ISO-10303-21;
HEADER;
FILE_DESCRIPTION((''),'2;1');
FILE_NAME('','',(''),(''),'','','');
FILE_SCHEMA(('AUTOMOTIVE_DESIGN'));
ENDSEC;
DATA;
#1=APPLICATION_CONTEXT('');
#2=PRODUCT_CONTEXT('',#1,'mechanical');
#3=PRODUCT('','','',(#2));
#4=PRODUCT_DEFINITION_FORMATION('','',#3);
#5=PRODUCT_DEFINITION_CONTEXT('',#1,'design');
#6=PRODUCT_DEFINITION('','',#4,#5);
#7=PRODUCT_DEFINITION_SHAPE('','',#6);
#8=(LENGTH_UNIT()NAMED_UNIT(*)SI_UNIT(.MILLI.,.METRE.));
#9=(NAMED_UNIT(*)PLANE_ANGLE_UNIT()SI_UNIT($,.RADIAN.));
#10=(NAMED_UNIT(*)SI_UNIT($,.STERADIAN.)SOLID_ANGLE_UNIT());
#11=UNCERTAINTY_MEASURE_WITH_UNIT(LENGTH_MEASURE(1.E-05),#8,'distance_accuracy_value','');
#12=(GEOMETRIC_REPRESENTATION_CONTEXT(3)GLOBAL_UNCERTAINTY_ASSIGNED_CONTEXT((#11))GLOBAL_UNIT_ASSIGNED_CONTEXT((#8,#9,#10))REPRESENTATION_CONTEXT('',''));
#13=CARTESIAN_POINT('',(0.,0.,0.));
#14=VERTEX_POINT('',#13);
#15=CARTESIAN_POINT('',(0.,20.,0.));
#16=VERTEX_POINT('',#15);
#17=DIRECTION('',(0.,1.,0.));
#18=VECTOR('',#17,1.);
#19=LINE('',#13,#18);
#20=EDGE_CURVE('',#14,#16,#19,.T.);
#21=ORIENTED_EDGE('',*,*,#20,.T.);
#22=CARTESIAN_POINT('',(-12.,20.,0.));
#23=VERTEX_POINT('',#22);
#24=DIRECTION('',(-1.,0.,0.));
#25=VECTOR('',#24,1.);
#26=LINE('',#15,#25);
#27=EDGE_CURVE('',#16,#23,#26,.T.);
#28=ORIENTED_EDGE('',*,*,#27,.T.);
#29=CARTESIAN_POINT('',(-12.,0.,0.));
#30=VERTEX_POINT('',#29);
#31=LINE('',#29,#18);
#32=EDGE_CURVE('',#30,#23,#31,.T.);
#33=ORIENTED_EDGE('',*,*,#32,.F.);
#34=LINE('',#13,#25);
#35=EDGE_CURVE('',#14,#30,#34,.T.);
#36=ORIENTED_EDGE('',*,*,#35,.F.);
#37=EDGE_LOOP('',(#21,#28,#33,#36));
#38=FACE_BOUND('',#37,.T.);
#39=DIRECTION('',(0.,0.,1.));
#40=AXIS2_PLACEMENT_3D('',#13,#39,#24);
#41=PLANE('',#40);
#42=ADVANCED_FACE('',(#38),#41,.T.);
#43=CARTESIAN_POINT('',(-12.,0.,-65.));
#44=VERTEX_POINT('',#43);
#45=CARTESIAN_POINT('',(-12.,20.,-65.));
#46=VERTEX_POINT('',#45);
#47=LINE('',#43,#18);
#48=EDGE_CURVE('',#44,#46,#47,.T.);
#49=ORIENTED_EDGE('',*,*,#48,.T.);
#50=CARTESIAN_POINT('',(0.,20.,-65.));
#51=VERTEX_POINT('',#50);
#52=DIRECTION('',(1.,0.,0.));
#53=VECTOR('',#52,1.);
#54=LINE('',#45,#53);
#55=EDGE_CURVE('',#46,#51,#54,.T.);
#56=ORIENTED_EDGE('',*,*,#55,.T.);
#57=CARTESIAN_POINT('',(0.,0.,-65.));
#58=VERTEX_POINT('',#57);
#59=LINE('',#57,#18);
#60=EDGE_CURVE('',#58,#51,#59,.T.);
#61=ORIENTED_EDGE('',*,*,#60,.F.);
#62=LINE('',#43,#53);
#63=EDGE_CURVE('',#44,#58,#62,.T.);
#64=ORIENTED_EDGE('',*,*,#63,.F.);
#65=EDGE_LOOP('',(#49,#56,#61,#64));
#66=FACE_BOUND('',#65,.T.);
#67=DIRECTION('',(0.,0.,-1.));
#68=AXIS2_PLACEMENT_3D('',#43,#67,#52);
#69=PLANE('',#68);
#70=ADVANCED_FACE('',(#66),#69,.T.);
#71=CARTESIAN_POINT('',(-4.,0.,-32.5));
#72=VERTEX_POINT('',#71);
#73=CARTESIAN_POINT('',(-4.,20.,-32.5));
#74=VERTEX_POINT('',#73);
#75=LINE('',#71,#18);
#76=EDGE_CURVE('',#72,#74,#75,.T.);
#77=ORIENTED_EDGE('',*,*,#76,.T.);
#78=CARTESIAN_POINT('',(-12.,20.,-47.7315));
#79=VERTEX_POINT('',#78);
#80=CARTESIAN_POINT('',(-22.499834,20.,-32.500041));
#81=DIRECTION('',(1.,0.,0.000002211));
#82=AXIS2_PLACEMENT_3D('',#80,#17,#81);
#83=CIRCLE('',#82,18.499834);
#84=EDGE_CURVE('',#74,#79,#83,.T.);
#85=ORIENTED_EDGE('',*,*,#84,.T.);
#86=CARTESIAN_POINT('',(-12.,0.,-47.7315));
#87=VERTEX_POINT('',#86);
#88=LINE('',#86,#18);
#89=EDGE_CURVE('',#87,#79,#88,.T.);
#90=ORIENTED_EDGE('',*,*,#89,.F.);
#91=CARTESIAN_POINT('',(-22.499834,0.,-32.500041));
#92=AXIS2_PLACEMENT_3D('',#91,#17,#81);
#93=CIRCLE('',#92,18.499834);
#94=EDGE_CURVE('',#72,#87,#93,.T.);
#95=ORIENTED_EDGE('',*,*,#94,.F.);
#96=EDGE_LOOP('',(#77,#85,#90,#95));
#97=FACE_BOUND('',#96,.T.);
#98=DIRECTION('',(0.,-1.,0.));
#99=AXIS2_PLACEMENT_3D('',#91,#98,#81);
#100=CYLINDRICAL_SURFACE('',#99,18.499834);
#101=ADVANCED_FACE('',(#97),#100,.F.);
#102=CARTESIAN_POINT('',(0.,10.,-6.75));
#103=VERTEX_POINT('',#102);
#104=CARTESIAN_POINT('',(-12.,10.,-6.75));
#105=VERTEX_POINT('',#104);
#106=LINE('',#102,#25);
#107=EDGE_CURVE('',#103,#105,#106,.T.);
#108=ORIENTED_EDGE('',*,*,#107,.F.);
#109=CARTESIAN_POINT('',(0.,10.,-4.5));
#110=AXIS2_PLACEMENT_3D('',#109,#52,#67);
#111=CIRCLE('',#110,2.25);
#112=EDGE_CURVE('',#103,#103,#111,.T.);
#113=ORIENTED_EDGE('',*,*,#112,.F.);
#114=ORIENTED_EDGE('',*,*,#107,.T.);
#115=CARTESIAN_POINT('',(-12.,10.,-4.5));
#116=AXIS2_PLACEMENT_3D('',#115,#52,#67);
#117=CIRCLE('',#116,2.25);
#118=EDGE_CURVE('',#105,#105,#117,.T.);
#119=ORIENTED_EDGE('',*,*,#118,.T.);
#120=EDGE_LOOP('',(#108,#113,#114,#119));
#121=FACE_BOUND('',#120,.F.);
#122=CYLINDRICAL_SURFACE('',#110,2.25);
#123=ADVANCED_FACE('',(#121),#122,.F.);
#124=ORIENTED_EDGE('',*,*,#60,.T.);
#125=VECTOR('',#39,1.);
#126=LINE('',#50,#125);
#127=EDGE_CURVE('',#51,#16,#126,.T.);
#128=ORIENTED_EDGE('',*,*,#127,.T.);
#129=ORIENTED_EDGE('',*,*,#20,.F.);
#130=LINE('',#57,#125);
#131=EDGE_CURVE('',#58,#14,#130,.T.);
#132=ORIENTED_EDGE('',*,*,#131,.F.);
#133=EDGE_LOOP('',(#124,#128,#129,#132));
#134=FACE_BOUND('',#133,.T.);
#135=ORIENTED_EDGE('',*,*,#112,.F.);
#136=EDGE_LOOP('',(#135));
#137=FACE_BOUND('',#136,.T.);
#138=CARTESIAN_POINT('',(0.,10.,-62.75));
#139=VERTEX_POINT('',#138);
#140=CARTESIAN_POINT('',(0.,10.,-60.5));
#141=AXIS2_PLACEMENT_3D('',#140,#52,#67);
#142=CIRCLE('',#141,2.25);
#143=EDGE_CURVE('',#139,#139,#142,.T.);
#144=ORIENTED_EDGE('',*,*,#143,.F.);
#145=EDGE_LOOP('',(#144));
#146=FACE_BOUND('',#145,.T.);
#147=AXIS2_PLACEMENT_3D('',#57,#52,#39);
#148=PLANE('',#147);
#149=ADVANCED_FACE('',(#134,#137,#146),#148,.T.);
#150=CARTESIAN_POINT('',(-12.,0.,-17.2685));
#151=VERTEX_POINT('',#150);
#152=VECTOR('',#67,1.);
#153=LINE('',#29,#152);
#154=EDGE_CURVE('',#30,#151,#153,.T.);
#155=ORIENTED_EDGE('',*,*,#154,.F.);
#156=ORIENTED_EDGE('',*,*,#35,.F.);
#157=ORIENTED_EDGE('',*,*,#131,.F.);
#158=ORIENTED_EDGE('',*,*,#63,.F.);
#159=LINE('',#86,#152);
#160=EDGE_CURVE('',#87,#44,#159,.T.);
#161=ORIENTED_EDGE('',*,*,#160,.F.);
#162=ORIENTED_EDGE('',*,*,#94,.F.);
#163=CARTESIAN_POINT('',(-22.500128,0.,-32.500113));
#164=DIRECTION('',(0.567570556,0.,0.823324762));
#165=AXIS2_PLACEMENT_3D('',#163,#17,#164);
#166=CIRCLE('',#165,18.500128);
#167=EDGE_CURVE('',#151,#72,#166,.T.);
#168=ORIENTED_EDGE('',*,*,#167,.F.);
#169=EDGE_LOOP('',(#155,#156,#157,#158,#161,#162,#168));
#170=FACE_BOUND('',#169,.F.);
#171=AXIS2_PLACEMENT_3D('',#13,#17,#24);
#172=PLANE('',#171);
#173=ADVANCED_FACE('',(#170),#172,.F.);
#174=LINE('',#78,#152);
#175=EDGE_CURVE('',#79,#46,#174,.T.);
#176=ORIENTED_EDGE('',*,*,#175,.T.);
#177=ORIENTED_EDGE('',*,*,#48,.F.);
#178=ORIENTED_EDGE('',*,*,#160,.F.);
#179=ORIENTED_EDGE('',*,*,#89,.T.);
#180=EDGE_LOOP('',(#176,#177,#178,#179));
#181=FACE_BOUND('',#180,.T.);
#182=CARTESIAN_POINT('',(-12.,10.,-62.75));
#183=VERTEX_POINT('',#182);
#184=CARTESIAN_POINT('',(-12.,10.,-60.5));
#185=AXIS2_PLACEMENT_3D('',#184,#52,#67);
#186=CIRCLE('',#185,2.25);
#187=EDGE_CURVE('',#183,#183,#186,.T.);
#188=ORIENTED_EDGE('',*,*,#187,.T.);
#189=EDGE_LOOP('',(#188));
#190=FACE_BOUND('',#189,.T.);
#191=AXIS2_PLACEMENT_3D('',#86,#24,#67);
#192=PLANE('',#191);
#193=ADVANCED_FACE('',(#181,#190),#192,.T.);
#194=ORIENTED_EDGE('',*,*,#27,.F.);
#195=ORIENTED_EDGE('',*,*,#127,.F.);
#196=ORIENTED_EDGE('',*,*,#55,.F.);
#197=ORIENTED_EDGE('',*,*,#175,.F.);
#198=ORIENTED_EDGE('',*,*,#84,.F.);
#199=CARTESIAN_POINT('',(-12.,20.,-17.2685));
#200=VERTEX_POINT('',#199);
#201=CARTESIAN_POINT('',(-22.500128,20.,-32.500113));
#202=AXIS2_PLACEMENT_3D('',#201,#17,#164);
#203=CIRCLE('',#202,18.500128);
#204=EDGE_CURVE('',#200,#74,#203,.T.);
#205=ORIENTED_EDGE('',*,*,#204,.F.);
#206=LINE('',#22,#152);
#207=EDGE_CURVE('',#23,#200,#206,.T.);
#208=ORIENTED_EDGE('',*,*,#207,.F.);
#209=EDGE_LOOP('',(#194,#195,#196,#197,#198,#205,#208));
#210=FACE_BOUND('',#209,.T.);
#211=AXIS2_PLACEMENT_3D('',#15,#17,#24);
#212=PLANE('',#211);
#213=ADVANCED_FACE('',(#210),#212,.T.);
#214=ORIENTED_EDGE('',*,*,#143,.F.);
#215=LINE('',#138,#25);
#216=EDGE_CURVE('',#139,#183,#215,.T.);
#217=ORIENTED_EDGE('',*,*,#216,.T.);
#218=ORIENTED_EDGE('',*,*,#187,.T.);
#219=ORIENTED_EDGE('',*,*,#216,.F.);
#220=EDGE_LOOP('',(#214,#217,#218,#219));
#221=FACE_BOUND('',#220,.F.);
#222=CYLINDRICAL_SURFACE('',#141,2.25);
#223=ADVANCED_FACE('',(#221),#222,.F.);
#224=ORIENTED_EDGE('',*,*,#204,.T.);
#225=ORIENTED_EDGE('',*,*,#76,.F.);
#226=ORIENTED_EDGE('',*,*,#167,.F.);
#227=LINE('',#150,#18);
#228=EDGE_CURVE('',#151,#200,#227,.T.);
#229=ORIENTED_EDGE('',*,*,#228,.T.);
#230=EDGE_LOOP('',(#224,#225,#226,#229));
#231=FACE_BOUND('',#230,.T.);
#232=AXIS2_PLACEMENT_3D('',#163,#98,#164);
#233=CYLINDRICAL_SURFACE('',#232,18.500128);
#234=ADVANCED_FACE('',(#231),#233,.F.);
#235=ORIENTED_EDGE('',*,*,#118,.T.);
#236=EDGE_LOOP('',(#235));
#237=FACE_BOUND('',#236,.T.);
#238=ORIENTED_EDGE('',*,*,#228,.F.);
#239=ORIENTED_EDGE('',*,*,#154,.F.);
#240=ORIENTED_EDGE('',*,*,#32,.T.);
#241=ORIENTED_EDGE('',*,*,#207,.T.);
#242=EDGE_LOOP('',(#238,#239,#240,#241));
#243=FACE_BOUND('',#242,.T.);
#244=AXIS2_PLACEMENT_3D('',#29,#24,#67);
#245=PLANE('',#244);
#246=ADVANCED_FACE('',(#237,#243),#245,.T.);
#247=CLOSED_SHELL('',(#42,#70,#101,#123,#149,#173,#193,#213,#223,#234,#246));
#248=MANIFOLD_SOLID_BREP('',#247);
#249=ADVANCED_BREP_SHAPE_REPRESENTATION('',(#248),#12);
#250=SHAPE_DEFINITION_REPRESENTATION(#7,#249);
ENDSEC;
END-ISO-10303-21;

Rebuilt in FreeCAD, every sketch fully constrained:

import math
import FreeCAD as App
import Part
import Sketcher
from FreeCAD import Vector

doc = App.newDocument("Part")
body = doc.addObject("PartDesign::Body", "Body")

# Sketch on XZ plane
sketch1 = body.newObject("Sketcher::SketchObject", "Sketch")
sketch1.AttachmentSupport = (doc.getObject("XZ_Plane"), [""])
sketch1.MapMode = "FlatFace"
sketch1.addGeometry([
    Part.LineSegment(Vector(-12, 0, 0), Vector(0, 0, 0)),  # 0
    Part.LineSegment(Vector(0, 0, 0), Vector(0, -65, 0)),  # 1
    Part.LineSegment(Vector(0, -65, 0), Vector(-12, -65, 0)),  # 2
    Part.LineSegment(Vector(-12, -65, 0), Vector(-12, -47.7315, 0)),  # 3
    Part.ArcOfCircle(Part.Circle(Vector(-22.5, -32.5, 0), Vector(0, 0, 1), 18.499962), math.radians(-55.41914), math.radians(0)),  # 4
    Part.ArcOfCircle(Part.Circle(Vector(-22.5, -32.5, 0), Vector(0, 0, 1), 18.5), math.radians(0), math.radians(55.41914)),  # 5
    Part.LineSegment(Vector(-12, -17.2685, 0), Vector(-12, 0, 0)),  # 6
], False)
sketch1.addConstraint([
    Sketcher.Constraint("Coincident", 0, 2, 1, 1),
    Sketcher.Constraint("Coincident", 1, 2, 2, 1),
    Sketcher.Constraint("Coincident", 2, 2, 3, 1),
    Sketcher.Constraint("Coincident", 3, 2, 4, 1),
    Sketcher.Constraint("Tangent", 4, 2, 5, 1),
    Sketcher.Constraint("Coincident", 5, 2, 6, 1),
    Sketcher.Constraint("Coincident", 6, 2, 0, 1),
    Sketcher.Constraint("Horizontal", 0),
    Sketcher.Constraint("Vertical", 1),
    Sketcher.Constraint("Horizontal", 2),
    Sketcher.Constraint("Vertical", 3),
    Sketcher.Constraint("Vertical", 6),
    Sketcher.Constraint("Coincident", 0, 2, -1, 1),
    Sketcher.Constraint("Equal", 4, 5),
    Sketcher.Constraint("Horizontal", 5, 3, 4, 2),
    Sketcher.Constraint("Vertical", 3, 2, 5, 2),
    Sketcher.Constraint("Equal", 3, 6),
    Sketcher.Constraint("Radius", 4, 18.5),
    Sketcher.Constraint("DistanceX", 0, 1, 0, 2, 12.0),
    Sketcher.Constraint("DistanceY", 1, 2, 1, 1, 65.0),
    Sketcher.Constraint("DistanceX", 4, 2, -1, 1, 4.0),
])
pad1 = body.newObject("PartDesign::Pad", "Pad")
pad1.Profile = sketch1
pad1.Length = 20
pad1.Reversed = True

# Sketch on YZ plane
sketch2 = body.newObject("Sketcher::SketchObject", "Sketch001")
sketch2.AttachmentSupport = (doc.getObject("YZ_Plane"), [""])
sketch2.MapMode = "FlatFace"
sketch2.addGeometry([
    Part.Circle(Vector(10, -4.5, 0), Vector(0, 0, 1), 2.25),
    Part.Circle(Vector(10, -60.5, 0), Vector(0, 0, 1), 2.25),
], False)
sketch2.addConstraint([
    Sketcher.Constraint("Equal", 0, 1),
    Sketcher.Constraint("Vertical", 0, 3, 1, 3),
    Sketcher.Constraint("Diameter", 0, 4.5),
    Sketcher.Constraint("DistanceX", -1, 1, 0, 3, 10.0),
    Sketcher.Constraint("DistanceY", 1, 3, 0, 3, 56.0),
    Sketcher.Constraint("DistanceY", 0, 3, -1, 1, 4.5),
])
pocket1 = body.newObject("PartDesign::Pocket", "Pocket")
pocket1.Profile = sketch2
pocket1.Length = 200

doc.recompute()
